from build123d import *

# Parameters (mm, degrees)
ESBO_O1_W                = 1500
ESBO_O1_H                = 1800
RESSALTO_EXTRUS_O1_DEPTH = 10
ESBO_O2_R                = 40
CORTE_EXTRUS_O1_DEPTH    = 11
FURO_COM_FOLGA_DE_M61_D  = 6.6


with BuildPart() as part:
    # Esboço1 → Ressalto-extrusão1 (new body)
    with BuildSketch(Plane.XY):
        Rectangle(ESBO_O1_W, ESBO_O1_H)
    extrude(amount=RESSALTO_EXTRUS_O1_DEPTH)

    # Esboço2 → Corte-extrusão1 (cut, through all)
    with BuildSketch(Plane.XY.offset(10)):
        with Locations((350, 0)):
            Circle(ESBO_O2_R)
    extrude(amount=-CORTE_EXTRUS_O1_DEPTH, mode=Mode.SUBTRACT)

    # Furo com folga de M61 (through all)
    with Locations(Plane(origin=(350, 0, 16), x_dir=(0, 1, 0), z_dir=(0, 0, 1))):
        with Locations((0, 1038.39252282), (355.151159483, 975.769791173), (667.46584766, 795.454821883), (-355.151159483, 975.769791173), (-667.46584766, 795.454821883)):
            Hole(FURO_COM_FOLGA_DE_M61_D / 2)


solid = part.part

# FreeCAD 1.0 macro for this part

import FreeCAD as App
import Part
import Sketcher

doc = App.newDocument("Part")
body = doc.addObject("PartDesign::Body", "Body")

# Sketch on XY plane
sketch1 = body.newObject("Sketcher::SketchObject", "Sketch")
sketch1.AttachmentSupport = (doc.getObject("XY_Plane"), [""])
sketch1.MapMode = "FlatFace"
sketch1.addGeometry([
    Part.LineSegment(App.Vector(-750, 900, 0), App.Vector(-750, -900, 0)),
    Part.LineSegment(App.Vector(-750, -900, 0), App.Vector(750, -900, 0)),
    Part.LineSegment(App.Vector(750, -900, 0), App.Vector(750, 900, 0)),
    Part.LineSegment(App.Vector(750, 900, 0), App.Vector(-750, 900, 0)),
], False)
sketch1.addConstraint([
    Sketcher.Constraint("Coincident", 0, 2, 1, 1),
    Sketcher.Constraint("Coincident", 1, 2, 2, 1),
    Sketcher.Constraint("Coincident", 2, 2, 3, 1),
    Sketcher.Constraint("Coincident", 3, 2, 0, 1),
    Sketcher.Constraint("Vertical", 0),
    Sketcher.Constraint("Horizontal", 1),
    Sketcher.Constraint("Vertical", 2),
    Sketcher.Constraint("Horizontal", 3),
    Sketcher.Constraint("Symmetric", 0, 2, 2, 2, -1, 1),
    Sketcher.Constraint("DistanceX", 1, 1, 1, 2, 1500.0),
    Sketcher.Constraint("DistanceY", 0, 2, 0, 1, 1800.0),
])
pad1 = body.newObject("PartDesign::Pad", "Pad")
pad1.Profile = sketch1
pad1.Length = 10

# Sketch on XY plane
sketch2 = body.newObject("Sketcher::SketchObject", "Sketch001")
sketch2.AttachmentSupport = (doc.getObject("XY_Plane"), [""])
sketch2.MapMode = "FlatFace"
sketch2.AttachmentOffset = App.Placement(App.Vector(0, 0, 10), App.Rotation())
sketch2.addGeometry(Part.Circle(App.Vector(350, 0, 0), App.Vector(0, 0, 1), 40), False)
sketch2.addConstraint([
    Sketcher.Constraint("PointOnObject", 0, 3, -1),
    Sketcher.Constraint("Diameter", 0, 80.0),
    Sketcher.Constraint("DistanceX", -1, 1, 0, 3, 350.0),
])
pocket1 = body.newObject("PartDesign::Pocket", "Pocket")
pocket1.Profile = sketch2
pocket1.Type = "ThroughAll"

# Sketch on XY plane
sketch3 = body.newObject("Sketcher::SketchObject", "Sketch002")
sketch3.AttachmentSupport = (doc.getObject("XY_Plane"), [""])
sketch3.MapMode = "FlatFace"
sketch3.AttachmentOffset = App.Placement(App.Vector(0, 0, 16), App.Rotation())
sketch3.addGeometry([
    Part.Circle(App.Vector(-688.392523, 0, 0), App.Vector(0, 0, 1), 3.3),  # 0
    Part.Circle(App.Vector(-625.769791, 355.151159, 0), App.Vector(0, 0, 1), 3.3),  # 1
    Part.Circle(App.Vector(-445.454822, 667.465848, 0), App.Vector(0, 0, 1), 3.3),  # 2
    Part.Circle(App.Vector(-625.769791, -355.151159, 0), App.Vector(0, 0, 1), 3.3),  # 3
    Part.Circle(App.Vector(-445.454822, -667.465848, 0), App.Vector(0, 0, 1), 3.3),  # 4
], False)
sketch3.addConstraint([
    Sketcher.Constraint("Equal", 0, 1),
    Sketcher.Constraint("Equal", 1, 2),
    Sketcher.Constraint("Equal", 2, 3),
    Sketcher.Constraint("Equal", 3, 4),
    Sketcher.Constraint("Symmetric", 1, 3, 3, 3, -1),
    Sketcher.Constraint("Symmetric", 2, 3, 4, 3, -1),
    Sketcher.Constraint("PointOnObject", 0, 3, -1),
    Sketcher.Constraint("Diameter", 0, 6.6),
    Sketcher.Constraint("DistanceX", 0, 3, 2, 3, 242.937701),
    Sketcher.Constraint("DistanceX", 1, 3, -1, 1, 625.769791),
    Sketcher.Constraint("DistanceY", -1, 1, 1, 3, 355.151159),
    Sketcher.Constraint("DistanceX", 2, 3, -1, 1, 445.454822),
    Sketcher.Constraint("DistanceY", 1, 3, 2, 3, 312.314688),
])
doc.recompute()
hole = body.newObject("PartDesign::Hole", "Hole")
hole.Profile = sketch3
hole.ThreadType = "None"
hole.Diameter = 6.6
hole.DepthType = "ThroughAll"

doc.recompute()
